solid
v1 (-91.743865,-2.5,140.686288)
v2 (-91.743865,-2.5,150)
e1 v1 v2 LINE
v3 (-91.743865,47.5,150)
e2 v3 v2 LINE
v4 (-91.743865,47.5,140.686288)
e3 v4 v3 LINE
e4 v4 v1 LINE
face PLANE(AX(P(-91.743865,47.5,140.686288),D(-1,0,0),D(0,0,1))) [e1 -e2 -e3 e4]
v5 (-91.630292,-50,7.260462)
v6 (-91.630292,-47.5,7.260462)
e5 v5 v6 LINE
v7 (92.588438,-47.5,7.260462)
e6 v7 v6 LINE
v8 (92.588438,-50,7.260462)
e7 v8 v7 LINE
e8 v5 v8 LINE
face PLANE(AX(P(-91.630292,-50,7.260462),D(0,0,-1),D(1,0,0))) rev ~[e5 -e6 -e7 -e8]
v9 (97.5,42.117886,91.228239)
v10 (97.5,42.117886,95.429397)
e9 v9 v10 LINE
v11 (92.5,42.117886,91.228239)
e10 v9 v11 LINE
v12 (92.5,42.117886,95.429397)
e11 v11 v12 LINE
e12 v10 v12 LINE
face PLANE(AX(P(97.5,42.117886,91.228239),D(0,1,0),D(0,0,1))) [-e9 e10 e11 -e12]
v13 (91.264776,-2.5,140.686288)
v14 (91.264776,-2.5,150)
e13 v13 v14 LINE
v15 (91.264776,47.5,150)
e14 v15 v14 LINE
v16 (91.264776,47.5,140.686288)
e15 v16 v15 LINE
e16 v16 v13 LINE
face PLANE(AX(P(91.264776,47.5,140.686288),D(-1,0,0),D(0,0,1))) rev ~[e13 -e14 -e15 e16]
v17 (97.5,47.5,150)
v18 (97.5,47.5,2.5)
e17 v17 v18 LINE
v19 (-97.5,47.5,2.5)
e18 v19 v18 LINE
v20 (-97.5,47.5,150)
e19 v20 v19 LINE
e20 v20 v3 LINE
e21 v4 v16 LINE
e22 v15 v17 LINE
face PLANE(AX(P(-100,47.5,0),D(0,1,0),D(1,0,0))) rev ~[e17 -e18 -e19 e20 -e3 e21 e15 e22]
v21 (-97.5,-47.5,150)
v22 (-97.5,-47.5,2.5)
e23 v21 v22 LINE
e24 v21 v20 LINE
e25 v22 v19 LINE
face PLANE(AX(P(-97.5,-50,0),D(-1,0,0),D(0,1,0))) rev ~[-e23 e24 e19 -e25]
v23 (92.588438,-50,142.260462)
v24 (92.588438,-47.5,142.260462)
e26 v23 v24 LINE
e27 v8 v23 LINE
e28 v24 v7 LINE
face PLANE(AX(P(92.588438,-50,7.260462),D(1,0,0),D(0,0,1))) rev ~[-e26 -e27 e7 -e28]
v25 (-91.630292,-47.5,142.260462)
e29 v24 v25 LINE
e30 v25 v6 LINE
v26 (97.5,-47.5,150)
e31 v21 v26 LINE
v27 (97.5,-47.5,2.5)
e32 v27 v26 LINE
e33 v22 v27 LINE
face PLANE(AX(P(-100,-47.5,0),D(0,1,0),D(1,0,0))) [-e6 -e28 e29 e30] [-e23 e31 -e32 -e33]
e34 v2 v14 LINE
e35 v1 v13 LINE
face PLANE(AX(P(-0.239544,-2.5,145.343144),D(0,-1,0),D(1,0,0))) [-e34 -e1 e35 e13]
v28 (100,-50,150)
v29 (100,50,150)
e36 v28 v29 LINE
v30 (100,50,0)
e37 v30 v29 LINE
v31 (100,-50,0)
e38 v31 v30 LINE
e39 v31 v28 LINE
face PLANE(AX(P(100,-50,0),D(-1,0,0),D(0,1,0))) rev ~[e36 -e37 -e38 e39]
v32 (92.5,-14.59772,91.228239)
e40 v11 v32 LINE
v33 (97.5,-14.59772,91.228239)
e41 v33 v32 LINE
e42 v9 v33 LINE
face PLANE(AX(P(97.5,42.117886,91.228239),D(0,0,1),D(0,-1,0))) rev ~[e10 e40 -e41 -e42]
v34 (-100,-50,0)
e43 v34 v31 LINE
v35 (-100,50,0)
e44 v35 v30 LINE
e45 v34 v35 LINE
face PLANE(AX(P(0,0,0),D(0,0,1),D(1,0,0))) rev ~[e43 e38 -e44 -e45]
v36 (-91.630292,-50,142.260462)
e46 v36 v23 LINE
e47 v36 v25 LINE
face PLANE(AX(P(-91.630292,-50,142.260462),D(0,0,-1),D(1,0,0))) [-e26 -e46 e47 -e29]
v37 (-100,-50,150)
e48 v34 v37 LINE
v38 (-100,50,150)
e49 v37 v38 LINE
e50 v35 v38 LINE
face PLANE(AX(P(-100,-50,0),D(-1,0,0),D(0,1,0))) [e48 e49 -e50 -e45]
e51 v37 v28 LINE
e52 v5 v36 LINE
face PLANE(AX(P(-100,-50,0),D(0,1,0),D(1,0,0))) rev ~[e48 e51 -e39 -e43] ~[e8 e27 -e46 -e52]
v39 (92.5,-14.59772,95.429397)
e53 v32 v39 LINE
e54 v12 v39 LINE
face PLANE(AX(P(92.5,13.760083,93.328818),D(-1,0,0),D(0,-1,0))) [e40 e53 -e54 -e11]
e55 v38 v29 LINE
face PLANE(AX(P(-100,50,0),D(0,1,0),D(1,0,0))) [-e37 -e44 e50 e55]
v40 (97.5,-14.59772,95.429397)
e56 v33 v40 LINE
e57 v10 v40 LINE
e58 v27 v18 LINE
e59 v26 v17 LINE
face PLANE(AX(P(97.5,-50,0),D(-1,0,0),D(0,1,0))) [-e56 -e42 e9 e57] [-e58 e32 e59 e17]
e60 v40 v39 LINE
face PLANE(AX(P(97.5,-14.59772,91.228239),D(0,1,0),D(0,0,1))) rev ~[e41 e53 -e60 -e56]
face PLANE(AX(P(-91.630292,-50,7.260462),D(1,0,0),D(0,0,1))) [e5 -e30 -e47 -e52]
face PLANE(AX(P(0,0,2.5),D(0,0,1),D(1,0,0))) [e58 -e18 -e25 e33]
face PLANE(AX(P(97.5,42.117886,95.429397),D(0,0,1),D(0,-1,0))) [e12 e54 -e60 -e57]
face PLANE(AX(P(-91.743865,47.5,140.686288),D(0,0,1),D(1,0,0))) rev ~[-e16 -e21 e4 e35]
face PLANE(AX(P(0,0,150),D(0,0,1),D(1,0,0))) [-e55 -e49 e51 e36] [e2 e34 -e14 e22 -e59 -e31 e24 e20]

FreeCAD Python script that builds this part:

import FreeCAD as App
import Part
import Sketcher


def faces_at(feature, points):
    """Names of the faces that lie closest to the given points."""
    faces = feature.Shape.Faces
    near = lambda p: min(range(len(faces)), key=lambda i: faces[i].distToShape(Part.Vertex(*p))[0])
    return sorted({f"Face{near(p) + 1}" for p in points})

doc = App.newDocument("Part")
params = doc.addObject("Spreadsheet::Sheet", "Params")
for row, (alias, value) in enumerate([
    ("sketch1_width", "200 mm"),
    ("sketch1_height", "100 mm"),
    ("pad1_length", "150 mm"),
    ("thickness_wall", "2.5 mm"),
    ("sketch2_height", "135 mm"),
    ("pocket1_length", "25 mm"),
    ("pad2_length", "5 mm"),
    ("pad3_length", "50 mm"),
], start=1):
    params.set(f"A{row}", alias)
    params.set(f"B{row}", "=" + value)
    params.setAlias(f"B{row}", alias)

body = doc.addObject("PartDesign::Body", "Body")

# Sketch on XY plane
sketch1 = doc.addObject("Sketcher::SketchObject", "Sketch")
body.addObject(sketch1)
sketch1.AttachmentSupport = (doc.XY_Plane, [""])
sketch1.MapMode = "FlatFace"
sketch1.addGeometry([
    Part.LineSegment(App.Vector(-100, 50, 0), App.Vector(-100, -50, 0)),
    Part.LineSegment(App.Vector(-100, -50, 0), App.Vector(100, -50, 0)),
    Part.LineSegment(App.Vector(100, -50, 0), App.Vector(100, 50, 0)),
    Part.LineSegment(App.Vector(100, 50, 0), App.Vector(-100, 50, 0)),
], False)
sketch1.addConstraint([
    Sketcher.Constraint("Coincident", 0, 2, 1, 1),
    Sketcher.Constraint("Coincident", 1, 2, 2, 1),
    Sketcher.Constraint("Coincident", 2, 2, 3, 1),
    Sketcher.Constraint("Coincident", 3, 2, 0, 1),
    Sketcher.Constraint("Vertical", 0),
    Sketcher.Constraint("Horizontal", 1),
    Sketcher.Constraint("Vertical", 2),
    Sketcher.Constraint("Horizontal", 3),
    Sketcher.Constraint("Symmetric", 0, 2, 2, 2, -1, 1),
    Sketcher.Constraint("DistanceX", 1, 1, 1, 2, 200.0),
    Sketcher.Constraint("DistanceY", 0, 2, 0, 1, 100.0),
])
sketch1.setExpression("Constraints[9]", "Params.sketch1_width")
sketch1.setExpression("Constraints[10]", "Params.sketch1_height")
pad1 = doc.addObject("PartDesign::Pad", "Pad")
body.addObject(pad1)
pad1.Profile = sketch1
pad1.setExpression("Length", "Params.pad1_length")
doc.recompute()

thickness = doc.addObject("PartDesign::Thickness", "Thickness")
body.addObject(thickness)
thickness.Base = (pad1, faces_at(pad1, [(0, 0, 150)]))
thickness.setExpression("Value", "Params.thickness_wall")
thickness.Reversed = True
thickness.Join = "Arc"

# Sketch on XZ plane
sketch2 = doc.addObject("Sketcher::SketchObject", "Sketch001")
body.addObject(sketch2)
sketch2.AttachmentSupport = (doc.XZ_Plane, [""])
sketch2.MapMode = "FlatFace"
sketch2.AttachmentOffset = App.Placement(App.Vector(0, 0, 50), App.Rotation())
sketch2.addGeometry([
    Part.LineSegment(App.Vector(-92, 142, 0), App.Vector(-92, 7, 0)),
    Part.LineSegment(App.Vector(-92, 7, 0), App.Vector(93, 7, 0)),
    Part.LineSegment(App.Vector(93, 7, 0), App.Vector(93, 142, 0)),
    Part.LineSegment(App.Vector(93, 142, 0), App.Vector(-92, 142, 0)),
], False)
sketch2.addConstraint([
    Sketcher.Constraint("Coincident", 0, 2, 1, 1),
    Sketcher.Constraint("Coincident", 1, 2, 2, 1),
    Sketcher.Constraint("Coincident", 2, 2, 3, 1),
    Sketcher.Constraint("Coincident", 3, 2, 0, 1),
    Sketcher.Constraint("Vertical", 0),
    Sketcher.Constraint("Horizontal", 1),
    Sketcher.Constraint("Vertical", 2),
    Sketcher.Constraint("Horizontal", 3),
    Sketcher.Constraint("DistanceY", 0, 2, 0, 1, 135.0),
    Sketcher.Constraint("DistanceX", 1, 1, 1, 2, 184.218731),
    Sketcher.Constraint("DistanceX", -1, 1, 1, 2, 92.588438),
    Sketcher.Constraint("DistanceY", -1, 1, 2, 2, 142.260462),
])
sketch2.setExpression("Constraints[8]", "Params.sketch2_height")
pocket1 = doc.addObject("PartDesign::Pocket", "Pocket")
body.addObject(pocket1)
pocket1.Profile = sketch2
pocket1.setExpression("Length", "Params.pocket1_length")

# Sketch on YZ plane
sketch3 = doc.addObject("Sketcher::SketchObject", "Sketch002")
body.addObject(sketch3)
sketch3.AttachmentSupport = (doc.YZ_Plane, [""])
sketch3.MapMode = "FlatFace"
sketch3.AttachmentOffset = App.Placement(App.Vector(0, 0, 97.5), App.Rotation())
sketch3.addGeometry([
    Part.LineSegment(App.Vector(42.1, 95.4, 0), App.Vector(42.1, 91.2, 0)),
    Part.LineSegment(App.Vector(42.1, 91.2, 0), App.Vector(-14.6, 91.2, 0)),
    Part.LineSegment(App.Vector(-14.6, 91.2, 0), App.Vector(-14.6, 95.4, 0)),
    Part.LineSegment(App.Vector(-14.6, 95.4, 0), App.Vector(42.1, 95.4, 0)),
], False)
sketch3.addConstraint([
    Sketcher.Constraint("Coincident", 0, 2, 1, 1),
    Sketcher.Constraint("Coincident", 1, 2, 2, 1),
    Sketcher.Constraint("Coincident", 2, 2, 3, 1),
    Sketcher.Constraint("Coincident", 3, 2, 0, 1),
    Sketcher.Constraint("Vertical", 0),
    Sketcher.Constraint("Horizontal", 1),
    Sketcher.Constraint("Vertical", 2),
    Sketcher.Constraint("Horizontal", 3),
    Sketcher.Constraint("DistanceY", 0, 2, 0, 1, 4.201159),
    Sketcher.Constraint("DistanceX", 1, 2, 1, 1, 56.715606),
    Sketcher.Constraint("DistanceY", -1, 1, 0, 2, 91.228239),
    Sketcher.Constraint("DistanceX", 1, 2, -1, 1, 14.59772),
])
pad2 = doc.addObject("PartDesign::Pad", "Pad001")
body.addObject(pad2)
pad2.Profile = sketch3
pad2.setExpression("Length", "Params.pad2_length")
pad2.Reversed = True

# Sketch on XZ plane
sketch4 = doc.addObject("Sketcher::SketchObject", "Sketch003")
body.addObject(sketch4)
sketch4.AttachmentSupport = (doc.XZ_Plane, [""])
sketch4.MapMode = "FlatFace"
sketch4.AttachmentOffset = App.Placement(App.Vector(0, 0, -47.5), App.Rotation())
sketch4.addGeometry([
    Part.LineSegment(App.Vector(-92, 150, 0), App.Vector(-92, 141, 0)),
    Part.LineSegment(App.Vector(-92, 141, 0), App.Vector(91, 141, 0)),
    Part.LineSegment(App.Vector(91, 141, 0), App.Vector(91, 150, 0)),
    Part.LineSegment(App.Vector(91, 150, 0), App.Vector(-92, 150, 0)),
], False)
sketch4.addConstraint([
    Sketcher.Constraint("Coincident", 0, 2, 1, 1),
    Sketcher.Constraint("Coincident", 1, 2, 2, 1),
    Sketcher.Constraint("Coincident", 2, 2, 3, 1),
    Sketcher.Constraint("Coincident", 3, 2, 0, 1),
    Sketcher.Constraint("Vertical", 0),
    Sketcher.Constraint("Horizontal", 1),
    Sketcher.Constraint("Vertical", 2),
    Sketcher.Constraint("Horizontal", 3),
    Sketcher.Constraint("DistanceY", -1, 1, 2, 2, 150.0),
    Sketcher.Constraint("DistanceX", 1, 1, 1, 2, 183.008641),
    Sketcher.Constraint("DistanceY", 0, 2, 0, 1, 9.313712),
    Sketcher.Constraint("DistanceX", 0, 2, -1, 1, 91.743865),
])
pad3 = doc.addObject("PartDesign::Pad", "Pad002")
body.addObject(pad3)
pad3.Profile = sketch4
pad3.setExpression("Length", "Params.pad3_length")

doc.recompute()
